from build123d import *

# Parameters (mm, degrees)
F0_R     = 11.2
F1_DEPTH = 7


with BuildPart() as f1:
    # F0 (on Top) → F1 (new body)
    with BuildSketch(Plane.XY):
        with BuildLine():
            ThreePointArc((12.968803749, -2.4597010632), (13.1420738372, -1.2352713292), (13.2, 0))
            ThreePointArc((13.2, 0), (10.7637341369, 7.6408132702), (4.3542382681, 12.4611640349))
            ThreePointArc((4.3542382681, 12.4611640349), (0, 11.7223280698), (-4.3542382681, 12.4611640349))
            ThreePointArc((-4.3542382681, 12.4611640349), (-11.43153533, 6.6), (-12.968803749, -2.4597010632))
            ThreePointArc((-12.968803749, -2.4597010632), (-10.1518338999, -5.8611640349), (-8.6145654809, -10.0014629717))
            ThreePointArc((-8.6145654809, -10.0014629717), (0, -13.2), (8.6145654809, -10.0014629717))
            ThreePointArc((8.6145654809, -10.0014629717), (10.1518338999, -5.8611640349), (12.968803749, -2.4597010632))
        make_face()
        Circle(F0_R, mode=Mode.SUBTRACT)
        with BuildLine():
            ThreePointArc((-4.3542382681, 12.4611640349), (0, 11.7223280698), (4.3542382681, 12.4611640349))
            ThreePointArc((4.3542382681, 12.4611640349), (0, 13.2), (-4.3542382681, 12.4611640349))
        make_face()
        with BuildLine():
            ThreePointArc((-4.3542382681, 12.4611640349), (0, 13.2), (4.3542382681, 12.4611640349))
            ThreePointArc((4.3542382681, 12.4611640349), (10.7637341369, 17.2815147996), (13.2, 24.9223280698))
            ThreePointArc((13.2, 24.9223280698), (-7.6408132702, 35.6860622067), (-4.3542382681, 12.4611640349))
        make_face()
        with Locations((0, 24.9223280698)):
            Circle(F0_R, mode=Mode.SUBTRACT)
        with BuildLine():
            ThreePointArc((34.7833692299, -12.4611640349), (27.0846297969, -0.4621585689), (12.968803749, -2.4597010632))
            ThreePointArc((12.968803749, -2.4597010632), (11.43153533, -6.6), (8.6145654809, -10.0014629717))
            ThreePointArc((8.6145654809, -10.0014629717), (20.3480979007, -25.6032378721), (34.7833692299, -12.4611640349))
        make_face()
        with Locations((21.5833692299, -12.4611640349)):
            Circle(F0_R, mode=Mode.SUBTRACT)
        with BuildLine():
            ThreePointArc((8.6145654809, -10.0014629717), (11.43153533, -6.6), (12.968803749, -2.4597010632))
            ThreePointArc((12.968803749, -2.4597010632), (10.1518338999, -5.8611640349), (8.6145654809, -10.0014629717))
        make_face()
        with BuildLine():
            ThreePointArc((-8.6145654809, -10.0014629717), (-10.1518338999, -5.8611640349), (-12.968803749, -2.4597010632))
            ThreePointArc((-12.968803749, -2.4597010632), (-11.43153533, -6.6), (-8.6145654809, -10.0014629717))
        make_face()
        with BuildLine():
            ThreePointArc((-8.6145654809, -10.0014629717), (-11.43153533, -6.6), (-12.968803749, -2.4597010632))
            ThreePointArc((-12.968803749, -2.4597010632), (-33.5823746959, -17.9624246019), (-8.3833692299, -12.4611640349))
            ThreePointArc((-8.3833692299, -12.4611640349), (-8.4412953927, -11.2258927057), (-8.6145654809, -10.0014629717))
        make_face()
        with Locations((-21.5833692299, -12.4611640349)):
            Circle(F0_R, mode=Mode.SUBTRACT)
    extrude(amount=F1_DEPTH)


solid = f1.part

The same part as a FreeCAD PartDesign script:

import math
import FreeCAD as App
import Part
import Sketcher
from FreeCAD import Vector
Q = App.Units.Quantity

doc = App.newDocument("Part")
body = doc.addObject("PartDesign::Body", "Body")

# Sketch on XY plane
sketch1 = doc.addObject("Sketcher::SketchObject", "Sketch")
body.addObject(sketch1)
sketch1.AttachmentSupport = (doc.XY_Plane, [""])
sketch1.MapMode = "FlatFace"
sketch1.addGeometry([
    Part.ArcOfCircle(Part.Circle(Vector(0, 0, 0), Vector(0, 0, 1), 13.2), math.radians(-10.739325), math.radians(0)),  # 0
    Part.ArcOfCircle(Part.Circle(Vector(0, 0, 0), Vector(0, 0, 1), 13.2), math.radians(0), math.radians(70.739325)),  # 1
    Part.ArcOfCircle(Part.Circle(Vector(0, 24.922328, 0), Vector(0, 0, 1), 13.2), math.radians(-70.739325), math.radians(0)),  # 2
    Part.ArcOfCircle(Part.Circle(Vector(0, 24.922328, 0), Vector(0, 0, 1), 13.2), math.radians(0), math.radians(250.739325)),  # 3
    Part.ArcOfCircle(Part.Circle(Vector(0, 0, 0), Vector(0, 0, 1), 13.2), math.radians(109.260675), math.radians(190.739325)),  # 4
    Part.ArcOfCircle(Part.Circle(Vector(-21.583369, -12.461164, 0), Vector(0, 0, 1), 13.2), math.radians(49.260675), math.radians(360)),  # 5
    Part.ArcOfCircle(Part.Circle(Vector(-21.583369, -12.461164, 0), Vector(0, 0, 1), 13.2), math.radians(0), math.radians(10.739325)),  # 6
    Part.ArcOfCircle(Part.Circle(Vector(0, 0, 0), Vector(0, 0, 1), 13.2), math.radians(-130.739325), math.radians(-49.260675)),  # 7
    Part.ArcOfCircle(Part.Circle(Vector(21.583369, -12.461164, 0), Vector(0, 0, 1), 13.2), math.radians(169.260675), math.radians(360)),  # 8
    Part.ArcOfCircle(Part.Circle(Vector(21.583369, -12.461164, 0), Vector(0, 0, 1), 13.2), math.radians(0), math.radians(130.739325)),  # 9
    Part.Circle(Vector(-21.583369, -12.461164, 0), Vector(0, 0, 1), 11.2),  # 10
    Part.Circle(Vector(21.583369, -12.461164, 0), Vector(0, 0, 1), 11.2),  # 11
    Part.Circle(Vector(0, 0, 0), Vector(0, 0, 1), 11.2),  # 12
    Part.Circle(Vector(0, 24.922328, 0), Vector(0, 0, 1), 11.2),  # 13
], False)
sketch1.addConstraint([
    Sketcher.Constraint("Tangent", 0, 2, 1, 1),
    Sketcher.Constraint("Coincident", 1, 2, 2, 1),
    Sketcher.Constraint("Tangent", 2, 2, 3, 1),
    Sketcher.Constraint("Coincident", 3, 2, 4, 1),
    Sketcher.Constraint("Coincident", 4, 2, 5, 1),
    Sketcher.Constraint("Tangent", 5, 2, 6, 1),
    Sketcher.Constraint("Coincident", 6, 2, 7, 1),
    Sketcher.Constraint("Coincident", 7, 2, 8, 1),
    Sketcher.Constraint("Tangent", 8, 2, 9, 1),
    Sketcher.Constraint("Coincident", 9, 2, 0, 1),
    Sketcher.Constraint("Coincident", 0, 3, -1, 1),
    Sketcher.Constraint("Coincident", 4, 3, -1, 1),
    Sketcher.Constraint("Coincident", 7, 3, -1, 1),
    Sketcher.Constraint("Coincident", 12, 3, -1, 1),
    Sketcher.Constraint("Coincident", 10, 3, 5, 3),
    Sketcher.Constraint("Coincident", 11, 3, 8, 3),
    Sketcher.Constraint("Coincident", 13, 3, 2, 3),
    Sketcher.Constraint("Equal", 0, 1),
    Sketcher.Constraint("Equal", 1, 2),
    Sketcher.Constraint("Equal", 2, 3),
    Sketcher.Constraint("Equal", 3, 4),
    Sketcher.Constraint("Equal", 4, 5),
    Sketcher.Constraint("Equal", 5, 6),
    Sketcher.Constraint("Equal", 6, 7),
    Sketcher.Constraint("Equal", 7, 8),
    Sketcher.Constraint("Equal", 8, 9),
    Sketcher.Constraint("Equal", 10, 11),
    Sketcher.Constraint("Equal", 11, 12),
    Sketcher.Constraint("Equal", 12, 13),
    Sketcher.Constraint("Symmetric", 5, 3, 8, 3, -2),
    Sketcher.Constraint("PointOnObject", 2, 3, -2),
    Sketcher.Constraint("PointOnObject", 0, 2, -1),
    Sketcher.Constraint("Horizontal", 13, 3, 2, 2),
    Sketcher.Constraint("Horizontal", 11, 3, 5, 2),
    Sketcher.Constraint("Horizontal", 5, 2, 8, 2),
    Sketcher.Constraint("Diameter", 10, Q("22.4 mm")),
    Sketcher.Constraint("Radius", 0, Q("13.2 mm")),
    Sketcher.Constraint("DistanceY", 4, 2, -1, 1, Q("2.459701 mm")),
    Sketcher.Constraint("DistanceY", -1, 1, 2, 3, Q("24.922328 mm")),
    Sketcher.Constraint("DistanceX", 5, 3, -1, 1, Q("21.583369 mm")),
])
pad1 = doc.addObject("PartDesign::Pad", "Pad")
body.addObject(pad1)
pad1.Profile = sketch1
pad1.Length = 7

doc.recompute()
